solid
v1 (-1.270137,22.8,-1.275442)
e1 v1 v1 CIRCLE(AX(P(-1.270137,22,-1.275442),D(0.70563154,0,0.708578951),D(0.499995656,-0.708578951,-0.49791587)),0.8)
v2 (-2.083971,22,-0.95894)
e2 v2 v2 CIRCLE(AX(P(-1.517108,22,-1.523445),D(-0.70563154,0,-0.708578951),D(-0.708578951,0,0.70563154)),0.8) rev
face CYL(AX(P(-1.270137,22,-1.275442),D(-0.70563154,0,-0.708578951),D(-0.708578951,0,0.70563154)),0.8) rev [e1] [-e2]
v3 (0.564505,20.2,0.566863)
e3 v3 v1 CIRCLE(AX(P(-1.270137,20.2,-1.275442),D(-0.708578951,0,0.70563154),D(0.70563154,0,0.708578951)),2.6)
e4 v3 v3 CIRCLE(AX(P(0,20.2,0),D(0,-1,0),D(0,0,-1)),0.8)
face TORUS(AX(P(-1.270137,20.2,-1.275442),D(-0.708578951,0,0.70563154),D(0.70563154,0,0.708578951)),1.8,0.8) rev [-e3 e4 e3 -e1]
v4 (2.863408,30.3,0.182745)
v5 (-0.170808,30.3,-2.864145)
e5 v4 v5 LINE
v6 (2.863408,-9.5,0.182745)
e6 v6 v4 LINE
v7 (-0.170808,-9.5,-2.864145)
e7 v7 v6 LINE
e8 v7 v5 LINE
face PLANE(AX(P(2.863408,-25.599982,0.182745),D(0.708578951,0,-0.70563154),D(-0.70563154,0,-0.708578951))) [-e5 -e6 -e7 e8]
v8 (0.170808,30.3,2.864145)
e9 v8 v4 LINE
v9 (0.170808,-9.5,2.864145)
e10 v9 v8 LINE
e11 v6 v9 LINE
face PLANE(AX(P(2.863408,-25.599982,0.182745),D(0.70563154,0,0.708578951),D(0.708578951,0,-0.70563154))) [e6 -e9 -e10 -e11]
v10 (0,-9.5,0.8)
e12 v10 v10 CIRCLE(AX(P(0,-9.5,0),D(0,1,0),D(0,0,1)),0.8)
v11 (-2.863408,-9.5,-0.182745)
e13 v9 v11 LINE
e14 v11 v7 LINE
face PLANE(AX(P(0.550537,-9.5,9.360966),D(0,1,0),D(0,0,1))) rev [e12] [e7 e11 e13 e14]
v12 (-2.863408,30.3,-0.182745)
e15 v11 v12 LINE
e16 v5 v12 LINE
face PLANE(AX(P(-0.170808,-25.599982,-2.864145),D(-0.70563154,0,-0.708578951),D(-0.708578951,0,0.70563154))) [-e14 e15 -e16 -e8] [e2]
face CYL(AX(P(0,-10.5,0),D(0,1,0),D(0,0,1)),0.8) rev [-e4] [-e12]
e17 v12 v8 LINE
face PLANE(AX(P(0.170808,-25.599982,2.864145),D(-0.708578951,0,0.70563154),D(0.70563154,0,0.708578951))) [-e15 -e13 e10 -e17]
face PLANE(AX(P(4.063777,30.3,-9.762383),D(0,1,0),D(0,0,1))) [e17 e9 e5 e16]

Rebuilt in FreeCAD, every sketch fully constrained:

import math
import FreeCAD as App
import Part
import Sketcher
from FreeCAD import Vector

doc = App.newDocument("Part")
body = doc.addObject("PartDesign::Body", "Body")

# Sketch on XZ plane
sketch1 = body.newObject("Sketcher::SketchObject", "Sketch")
sketch1.AttachmentSupport = (doc.getObject("XZ_Plane"), [""])
sketch1.MapMode = "FlatFace"
sketch1.addGeometry([
    Part.LineSegment(Vector(-2.9, -0.2, 0), Vector(0.2, 2.9, 0)),
    Part.LineSegment(Vector(0.2, 2.9, 0), Vector(2.9, 0.2, 0)),
    Part.LineSegment(Vector(2.9, 0.2, 0), Vector(-0.2, -2.9, 0)),
    Part.LineSegment(Vector(-0.2, -2.9, 0), Vector(-2.9, -0.2, 0)),
], False)
sketch1.addConstraint([
    Sketcher.Constraint("Coincident", 0, 2, 1, 1),
    Sketcher.Constraint("Coincident", 1, 2, 2, 1),
    Sketcher.Constraint("Coincident", 2, 2, 3, 1),
    Sketcher.Constraint("Coincident", 3, 2, 0, 1),
    Sketcher.Constraint("Symmetric", 0, 2, 2, 2, -1, 1),
    Sketcher.Constraint("Symmetric", 1, 2, 3, 2, -1, 1),
    Sketcher.Constraint("Perpendicular", 0, 1),
    Sketcher.Constraint("Distance", 0, 4.3),
    Sketcher.Constraint("Distance", 1, 3.8),
    Sketcher.Constraint("DistanceX", 0, 2, 1, 2, 2.6926),
])
pad1 = body.newObject("PartDesign::Pad", "Pad")
pad1.Profile = sketch1
pad1.Type = "TwoLengths"
pad1.Length = 30.3
pad1.Length2 = 9.5
pad1.Reversed = True

# Sketch on XZ plane
sketch2 = body.newObject("Sketcher::SketchObject", "Sketch001")
sketch2.AttachmentSupport = (doc.getObject("XZ_Plane"), [""])
sketch2.MapMode = "FlatFace"
sketch2.AttachmentOffset = App.Placement(Vector(0, 0, 9.5), App.Rotation())
sketch2.addGeometry(Part.Circle(Vector(0, 0, 0), Vector(0, 0, 1), 0.8), False)
sketch2.addConstraint([
    Sketcher.Constraint("Coincident", 0, 3, -1, 1),
    Sketcher.Constraint("Diameter", 0, 1.6),
])

# Sketch on an angled plane
sketch3 = body.newObject("Sketcher::SketchObject", "Sketch002")
sketch3.Placement = App.Placement(Vector(0, 0, 0), App.Rotation(Vector(-0.70563154, 0, -0.708578951), Vector(0, 1, 0), Vector(0.708578951, 0, -0.70563154), "ZXY"))
sketch3.addGeometry([
    Part.LineSegment(Vector(0, -9.5, 0), Vector(0, 20.2, 0)),
    Part.ArcOfCircle(Part.Circle(Vector(1.8, 20.2, 0), Vector(0, 0, 1), 1.8), math.radians(90), math.radians(180)),
    Part.LineSegment(Vector(1.8, 22, 0), Vector(2.25, 22, 0)),
], False)
sketch3.addConstraint([
    Sketcher.Constraint("Tangent", 0, 2, 1, 2),
    Sketcher.Constraint("Tangent", 1, 1, 2, 1),
    Sketcher.Constraint("Vertical", 0),
    Sketcher.Constraint("Horizontal", 2),
    Sketcher.Constraint("PointOnObject", 0, 1, -2),
    Sketcher.Constraint("Radius", 1, 1.8),
    Sketcher.Constraint("DistanceY", 0, 1, 0, 2, 29.7),
    Sketcher.Constraint("DistanceY", -1, 1, 1, 1, 22.0),
    Sketcher.Constraint("DistanceX", 2, 1, 2, 2, 0.45),
])
doc.recompute()

subtractivepipe = body.newObject("PartDesign::SubtractivePipe", "SubtractivePipe")
subtractivepipe.Profile = sketch2
subtractivepipe.Spine = (sketch3, ["Edge1", "Edge2", "Edge3"])

doc.recompute()
